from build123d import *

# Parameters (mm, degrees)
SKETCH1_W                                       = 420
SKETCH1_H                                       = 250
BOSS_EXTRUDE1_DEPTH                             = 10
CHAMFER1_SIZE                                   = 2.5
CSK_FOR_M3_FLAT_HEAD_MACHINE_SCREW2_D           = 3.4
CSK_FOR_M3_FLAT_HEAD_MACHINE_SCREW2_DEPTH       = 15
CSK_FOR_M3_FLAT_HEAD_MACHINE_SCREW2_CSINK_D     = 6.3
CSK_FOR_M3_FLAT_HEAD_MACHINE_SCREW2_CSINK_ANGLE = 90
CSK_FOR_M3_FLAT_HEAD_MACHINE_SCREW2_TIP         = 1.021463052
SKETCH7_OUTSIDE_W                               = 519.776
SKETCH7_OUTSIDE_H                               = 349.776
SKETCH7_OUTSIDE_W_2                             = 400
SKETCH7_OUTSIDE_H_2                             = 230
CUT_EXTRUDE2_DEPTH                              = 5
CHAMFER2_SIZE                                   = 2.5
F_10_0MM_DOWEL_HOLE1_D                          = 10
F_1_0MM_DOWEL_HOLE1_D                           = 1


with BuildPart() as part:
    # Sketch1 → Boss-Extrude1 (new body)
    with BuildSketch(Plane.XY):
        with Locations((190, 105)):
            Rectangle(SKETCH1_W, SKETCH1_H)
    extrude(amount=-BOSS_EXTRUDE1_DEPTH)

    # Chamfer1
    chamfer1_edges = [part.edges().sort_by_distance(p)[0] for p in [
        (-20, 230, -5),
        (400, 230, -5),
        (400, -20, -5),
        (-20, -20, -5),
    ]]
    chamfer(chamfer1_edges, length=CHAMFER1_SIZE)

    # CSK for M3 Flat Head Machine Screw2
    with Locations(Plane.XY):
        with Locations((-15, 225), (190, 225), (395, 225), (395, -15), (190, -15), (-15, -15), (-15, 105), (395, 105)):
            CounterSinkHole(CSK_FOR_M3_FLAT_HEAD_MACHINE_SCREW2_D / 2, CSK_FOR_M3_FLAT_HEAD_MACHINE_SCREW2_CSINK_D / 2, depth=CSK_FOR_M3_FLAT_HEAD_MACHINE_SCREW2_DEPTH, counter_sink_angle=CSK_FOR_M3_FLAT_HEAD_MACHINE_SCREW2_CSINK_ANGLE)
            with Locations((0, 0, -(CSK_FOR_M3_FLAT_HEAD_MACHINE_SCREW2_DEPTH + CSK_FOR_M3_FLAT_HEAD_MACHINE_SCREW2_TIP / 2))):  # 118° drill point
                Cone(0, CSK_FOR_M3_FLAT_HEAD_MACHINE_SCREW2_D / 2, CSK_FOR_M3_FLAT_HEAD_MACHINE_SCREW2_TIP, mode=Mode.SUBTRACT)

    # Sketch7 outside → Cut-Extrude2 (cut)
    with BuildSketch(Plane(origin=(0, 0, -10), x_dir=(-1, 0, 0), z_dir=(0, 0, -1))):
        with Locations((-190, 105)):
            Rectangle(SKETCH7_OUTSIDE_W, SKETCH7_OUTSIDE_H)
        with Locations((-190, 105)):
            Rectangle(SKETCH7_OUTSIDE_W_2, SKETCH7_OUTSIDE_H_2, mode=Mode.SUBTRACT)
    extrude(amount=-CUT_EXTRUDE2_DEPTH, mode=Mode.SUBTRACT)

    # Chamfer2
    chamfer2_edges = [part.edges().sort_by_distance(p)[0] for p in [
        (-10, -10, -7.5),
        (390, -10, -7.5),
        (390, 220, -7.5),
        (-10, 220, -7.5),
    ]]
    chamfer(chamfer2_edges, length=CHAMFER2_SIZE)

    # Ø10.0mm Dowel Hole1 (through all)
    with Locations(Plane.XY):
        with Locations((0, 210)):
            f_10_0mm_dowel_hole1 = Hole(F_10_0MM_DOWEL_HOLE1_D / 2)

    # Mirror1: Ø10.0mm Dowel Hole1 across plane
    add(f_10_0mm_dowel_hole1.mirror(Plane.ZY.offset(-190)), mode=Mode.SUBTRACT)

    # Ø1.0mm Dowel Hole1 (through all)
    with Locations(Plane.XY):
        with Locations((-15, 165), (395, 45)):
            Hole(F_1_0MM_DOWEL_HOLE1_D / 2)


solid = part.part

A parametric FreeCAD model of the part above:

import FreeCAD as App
import Part
import Sketcher

V = App.Vector
Q = App.Units.Quantity


def edges_at(feature, points):
    """Names of the edges that pass closest to the given points."""
    edges = feature.Shape.Edges
    near = lambda p: min(range(len(edges)), key=lambda i: edges[i].distToShape(Part.Vertex(*p))[0])
    return sorted({f"Edge{near(p) + 1}" for p in points})

doc = App.newDocument("Part")
body = doc.addObject("PartDesign::Body", "Body")

sketch1 = body.newObject("Sketcher::SketchObject", "Sketch")
sketch1.AttachmentSupport = (doc.getObject("XY_Plane"), [""])
sketch1.MapMode = "FlatFace"
sketch1.addGeometry(Part.LineSegment(V(-20, 230, 0), V(-20, -20, 0)), False)
sketch1.addGeometry(Part.LineSegment(V(-20, -20, 0), V(400, -20, 0)), False)
sketch1.addGeometry(Part.LineSegment(V(400, -20, 0), V(400, 230, 0)), False)
sketch1.addGeometry(Part.LineSegment(V(400, 230, 0), V(-20, 230, 0)), False)
sketch1.addConstraint(Sketcher.Constraint("Coincident", 0, 2, 1, 1))
sketch1.addConstraint(Sketcher.Constraint("Coincident", 1, 2, 2, 1))
sketch1.addConstraint(Sketcher.Constraint("Coincident", 2, 2, 3, 1))
sketch1.addConstraint(Sketcher.Constraint("Coincident", 3, 2, 0, 1))
sketch1.addConstraint(Sketcher.Constraint("Vertical", 0))
sketch1.addConstraint(Sketcher.Constraint("Horizontal", 1))
sketch1.addConstraint(Sketcher.Constraint("Vertical", 2))
sketch1.addConstraint(Sketcher.Constraint("Horizontal", 3))
sketch1.addConstraint(Sketcher.Constraint("DistanceX", 1, 1, 1, 2, Q("420 mm")))
sketch1.addConstraint(Sketcher.Constraint("DistanceY", 0, 2, 0, 1, Q("250 mm")))
sketch1.addConstraint(Sketcher.Constraint("DistanceX", 0, 2, -1, 1, Q("20 mm")))
sketch1.addConstraint(Sketcher.Constraint("DistanceY", 0, 2, -1, 1, Q("20 mm")))
pad1 = body.newObject("PartDesign::Pad", "Pad")
pad1.Profile = sketch1
pad1.Length = 10
pad1.Reversed = True
doc.recompute()

chamfer = body.newObject("PartDesign::Chamfer", "Chamfer")
chamfer.Base = (pad1, edges_at(pad1, [
    (-20, 230, -5),
    (400, 230, -5),
    (400, -20, -5),
    (-20, -20, -5),
]))
chamfer.Size = 2.5

sketch2 = body.newObject("Sketcher::SketchObject", "Sketch001")
sketch2.AttachmentSupport = (doc.getObject("XY_Plane"), [""])
sketch2.MapMode = "FlatFace"
sketch2.addGeometry(Part.Circle(V(-15, 225, 0), V(0, 0, 1), 1.7), False)
sketch2.addGeometry(Part.Circle(V(190, 225, 0), V(0, 0, 1), 1.7), False)
sketch2.addGeometry(Part.Circle(V(395, 225, 0), V(0, 0, 1), 1.7), False)
sketch2.addGeometry(Part.Circle(V(395, -15, 0), V(0, 0, 1), 1.7), False)
sketch2.addGeometry(Part.Circle(V(190, -15, 0), V(0, 0, 1), 1.7), False)
sketch2.addGeometry(Part.Circle(V(-15, -15, 0), V(0, 0, 1), 1.7), False)
sketch2.addGeometry(Part.Circle(V(-15, 105, 0), V(0, 0, 1), 1.7), False)
sketch2.addGeometry(Part.Circle(V(395, 105, 0), V(0, 0, 1), 1.7), False)
sketch2.addConstraint(Sketcher.Constraint("Equal", 0, 1))
sketch2.addConstraint(Sketcher.Constraint("Equal", 1, 2))
sketch2.addConstraint(Sketcher.Constraint("Equal", 2, 3))
sketch2.addConstraint(Sketcher.Constraint("Equal", 3, 4))
sketch2.addConstraint(Sketcher.Constraint("Equal", 4, 5))
sketch2.addConstraint(Sketcher.Constraint("Equal", 5, 6))
sketch2.addConstraint(Sketcher.Constraint("Equal", 6, 7))
sketch2.addConstraint(Sketcher.Constraint("Horizontal", 0, 3, 1, 3))
sketch2.addConstraint(Sketcher.Constraint("Horizontal", 1, 3, 2, 3))
sketch2.addConstraint(Sketcher.Constraint("Horizontal", 3, 3, 4, 3))
sketch2.addConstraint(Sketcher.Constraint("Horizontal", 4, 3, 5, 3))
sketch2.addConstraint(Sketcher.Constraint("Horizontal", 6, 3, 7, 3))
sketch2.addConstraint(Sketcher.Constraint("Vertical", 2, 3, 3, 3))
sketch2.addConstraint(Sketcher.Constraint("Vertical", 1, 3, 4, 3))
sketch2.addConstraint(Sketcher.Constraint("Vertical", 0, 3, 5, 3))
sketch2.addConstraint(Sketcher.Constraint("Vertical", 5, 3, 6, 3))
sketch2.addConstraint(Sketcher.Constraint("Vertical", 3, 3, 7, 3))
sketch2.addConstraint(Sketcher.Constraint("Diameter", 0, Q("3.4 mm")))
sketch2.addConstraint(Sketcher.Constraint("DistanceX", 0, 3, -1, 1, Q("15 mm")))
sketch2.addConstraint(Sketcher.Constraint("DistanceY", -1, 1, 0, 3, Q("225 mm")))
sketch2.addConstraint(Sketcher.Constraint("DistanceX", -1, 1, 1, 3, Q("190 mm")))
sketch2.addConstraint(Sketcher.Constraint("DistanceX", -1, 1, 2, 3, Q("395 mm")))
sketch2.addConstraint(Sketcher.Constraint("DistanceY", 3, 3, -1, 1, Q("15 mm")))
sketch2.addConstraint(Sketcher.Constraint("DistanceY", -1, 1, 6, 3, Q("105 mm")))
doc.recompute()
hole = body.newObject("PartDesign::Hole", "Hole")
hole.Profile = sketch2
hole.ThreadType = "None"
hole.Diameter = 3.4
hole.DepthType = "Dimension"
hole.Depth = 15
hole.DrillPoint = "Angled"
hole.DrillPointAngle = 118
hole.HoleCutType = "Countersink"
hole.HoleCutDiameter = 6.3
hole.HoleCutCountersinkAngle = 90

sketch3 = body.newObject("Sketcher::SketchObject", "Sketch002")
sketch3.AttachmentSupport = (doc.getObject("XY_Plane"), [""])
sketch3.MapMode = "FlatFace"
sketch3.AttachmentOffset = App.Placement(V(0, 0, -10), App.Rotation())
sketch3.addGeometry(Part.LineSegment(V(450, 280, 0), V(450, -70, 0)), False)
sketch3.addGeometry(Part.LineSegment(V(450, -70, 0), V(-70, -70, 0)), False)
sketch3.addGeometry(Part.LineSegment(V(-70, -70, 0), V(-70, 280, 0)), False)
sketch3.addGeometry(Part.LineSegment(V(-70, 280, 0), V(450, 280, 0)), False)
sketch3.addGeometry(Part.LineSegment(V(-10, -10, 0), V(390, -10, 0)), False)
sketch3.addGeometry(Part.LineSegment(V(390, -10, 0), V(390, 220, 0)), False)
sketch3.addGeometry(Part.LineSegment(V(390, 220, 0), V(-10, 220, 0)), False)
sketch3.addGeometry(Part.LineSegment(V(-10, 220, 0), V(-10, -10, 0)), False)
sketch3.addConstraint(Sketcher.Constraint("Coincident", 0, 2, 1, 1))
sketch3.addConstraint(Sketcher.Constraint("Coincident", 1, 2, 2, 1))
sketch3.addConstraint(Sketcher.Constraint("Coincident", 2, 2, 3, 1))
sketch3.addConstraint(Sketcher.Constraint("Coincident", 3, 2, 0, 1))
sketch3.addConstraint(Sketcher.Constraint("Coincident", 4, 2, 5, 1))
sketch3.addConstraint(Sketcher.Constraint("Coincident", 5, 2, 6, 1))
sketch3.addConstraint(Sketcher.Constraint("Coincident", 6, 2, 7, 1))
sketch3.addConstraint(Sketcher.Constraint("Coincident", 7, 2, 4, 1))
sketch3.addConstraint(Sketcher.Constraint("Vertical", 0))
sketch3.addConstraint(Sketcher.Constraint("Horizontal", 1))
sketch3.addConstraint(Sketcher.Constraint("Vertical", 2))
sketch3.addConstraint(Sketcher.Constraint("Horizontal", 3))
sketch3.addConstraint(Sketcher.Constraint("Horizontal", 4))
sketch3.addConstraint(Sketcher.Constraint("Vertical", 5))
sketch3.addConstraint(Sketcher.Constraint("Horizontal", 6))
sketch3.addConstraint(Sketcher.Constraint("Vertical", 7))
sketch3.addConstraint(Sketcher.Constraint("DistanceX", 4, 1, 4, 2, Q("400 mm")))
sketch3.addConstraint(Sketcher.Constraint("DistanceY", 5, 1, 5, 2, Q("230 mm")))
sketch3.addConstraint(Sketcher.Constraint("DistanceX", -1, 1, 4, 2, Q("390 mm")))
sketch3.addConstraint(Sketcher.Constraint("DistanceY", 4, 2, -1, 1, Q("10 mm")))
sketch3.addConstraint(Sketcher.Constraint("DistanceX", 1, 2, 1, 1, Q("519.776 mm")))
sketch3.addConstraint(Sketcher.Constraint("DistanceY", 0, 2, 0, 1, Q("349.776 mm")))
sketch3.addConstraint(Sketcher.Constraint("DistanceX", -1, 1, 0, 2, Q("449.888 mm")))
sketch3.addConstraint(Sketcher.Constraint("DistanceY", 0, 2, -1, 1, Q("69.888 mm")))
pocket1 = body.newObject("PartDesign::Pocket", "Pocket")
pocket1.Profile = sketch3
pocket1.Length = 5
pocket1.Reversed = True
doc.recompute()

chamfer2 = body.newObject("PartDesign::Chamfer", "Chamfer001")
chamfer2.Base = (pocket1, edges_at(pocket1, [
    (-10, -10, -7.5),
    (390, -10, -7.5),
    (390, 220, -7.5),
    (-10, 220, -7.5),
]))
chamfer2.Size = 2.5

sketch4 = body.newObject("Sketcher::SketchObject", "Sketch003")
sketch4.AttachmentSupport = (doc.getObject("XY_Plane"), [""])
sketch4.MapMode = "FlatFace"
sketch4.addGeometry(Part.Circle(V(0, 210, 0), V(0, 0, 1), 5), False)
sketch4.addConstraint(Sketcher.Constraint("PointOnObject", 0, 3, -2))
sketch4.addConstraint(Sketcher.Constraint("Diameter", 0, Q("10 mm")))
sketch4.addConstraint(Sketcher.Constraint("DistanceY", -1, 1, 0, 3, Q("210 mm")))
doc.recompute()
hole2 = body.newObject("PartDesign::Hole", "Hole001")
hole2.Profile = sketch4
hole2.ThreadType = "None"
hole2.Diameter = 10
hole2.DepthType = "ThroughAll"
doc.recompute()

datumplane = body.newObject("PartDesign::Plane", "DatumPlane")
datumplane.AttachmentSupport = (doc.getObject("YZ_Plane"), [""])
datumplane.MapMode = "FlatFace"
datumplane.AttachmentOffset = App.Placement(V(0, 0, 190), App.Rotation())
mirrored = body.newObject("PartDesign::Mirrored", "Mirrored")
mirrored.Originals = [hole2]
mirrored.MirrorPlane = (datumplane, [""])
body.Tip = mirrored

sketch5 = body.newObject("Sketcher::SketchObject", "Sketch004")
sketch5.AttachmentSupport = (doc.getObject("XY_Plane"), [""])
sketch5.MapMode = "FlatFace"
sketch5.addGeometry(Part.Circle(V(-15, 165, 0), V(0, 0, 1), 0.5), False)
sketch5.addGeometry(Part.Circle(V(395, 45, 0), V(0, 0, 1), 0.5), False)
sketch5.addConstraint(Sketcher.Constraint("Equal", 0, 1))
sketch5.addConstraint(Sketcher.Constraint("Diameter", 0, Q("1 mm")))
sketch5.addConstraint(Sketcher.Constraint("DistanceX", 0, 3, -1, 1, Q("15 mm")))
sketch5.addConstraint(Sketcher.Constraint("DistanceY", -1, 1, 0, 3, Q("165 mm")))
sketch5.addConstraint(Sketcher.Constraint("DistanceX", -1, 1, 1, 3, Q("395 mm")))
sketch5.addConstraint(Sketcher.Constraint("DistanceY", -1, 1, 1, 3, Q("45 mm")))
doc.recompute()
hole3 = body.newObject("PartDesign::Hole", "Hole002")
hole3.Profile = sketch5
hole3.ThreadType = "None"
hole3.Diameter = 1
hole3.DepthType = "ThroughAll"

doc.recompute()
